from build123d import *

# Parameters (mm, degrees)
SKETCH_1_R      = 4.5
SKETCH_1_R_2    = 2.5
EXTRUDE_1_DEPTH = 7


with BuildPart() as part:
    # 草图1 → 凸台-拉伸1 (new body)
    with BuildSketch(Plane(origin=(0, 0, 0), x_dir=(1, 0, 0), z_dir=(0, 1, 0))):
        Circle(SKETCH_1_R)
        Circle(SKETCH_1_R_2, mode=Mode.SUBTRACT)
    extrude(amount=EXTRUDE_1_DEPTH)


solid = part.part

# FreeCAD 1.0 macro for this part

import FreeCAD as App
import Part
import Sketcher

V = App.Vector

doc = App.newDocument("Part")
params = doc.addObject("Spreadsheet::Sheet", "Params")
for row, (alias, value) in enumerate([
    ("sketch1_diameter", "9 mm"),
    ("sketch1_diameter2", "5 mm"),
    ("pad1_length", "7 mm"),
], start=1):
    params.set(f"A{row}", alias)
    params.set(f"B{row}", "=" + value)
    params.setAlias(f"B{row}", alias)

body = doc.addObject("PartDesign::Body", "Body")

# Sketch on XZ plane
sketch1 = body.newObject("Sketcher::SketchObject", "Sketch")
sketch1.AttachmentSupport = (doc.getObject("XZ_Plane"), [""])
sketch1.MapMode = "FlatFace"
sketch1.addGeometry([
    Part.Circle(V(0, 0, 0), V(0, 0, 1), 4.5),
    Part.Circle(V(0, 0, 0), V(0, 0, 1), 2.5),
], False)
sketch1.addConstraint([
    Sketcher.Constraint("Coincident", 0, 3, -1, 1),
    Sketcher.Constraint("Coincident", 1, 3, -1, 1),
    Sketcher.Constraint("Diameter", 0, 9.0),
    Sketcher.Constraint("Diameter", 1, 5.0),
])
sketch1.setExpression("Constraints[2]", "Params.sketch1_diameter")
sketch1.setExpression("Constraints[3]", "Params.sketch1_diameter2")
pad1 = body.newObject("PartDesign::Pad", "Pad")
pad1.Profile = sketch1
pad1.setExpression("Length", "Params.pad1_length")
pad1.Reversed = True

doc.recompute()
